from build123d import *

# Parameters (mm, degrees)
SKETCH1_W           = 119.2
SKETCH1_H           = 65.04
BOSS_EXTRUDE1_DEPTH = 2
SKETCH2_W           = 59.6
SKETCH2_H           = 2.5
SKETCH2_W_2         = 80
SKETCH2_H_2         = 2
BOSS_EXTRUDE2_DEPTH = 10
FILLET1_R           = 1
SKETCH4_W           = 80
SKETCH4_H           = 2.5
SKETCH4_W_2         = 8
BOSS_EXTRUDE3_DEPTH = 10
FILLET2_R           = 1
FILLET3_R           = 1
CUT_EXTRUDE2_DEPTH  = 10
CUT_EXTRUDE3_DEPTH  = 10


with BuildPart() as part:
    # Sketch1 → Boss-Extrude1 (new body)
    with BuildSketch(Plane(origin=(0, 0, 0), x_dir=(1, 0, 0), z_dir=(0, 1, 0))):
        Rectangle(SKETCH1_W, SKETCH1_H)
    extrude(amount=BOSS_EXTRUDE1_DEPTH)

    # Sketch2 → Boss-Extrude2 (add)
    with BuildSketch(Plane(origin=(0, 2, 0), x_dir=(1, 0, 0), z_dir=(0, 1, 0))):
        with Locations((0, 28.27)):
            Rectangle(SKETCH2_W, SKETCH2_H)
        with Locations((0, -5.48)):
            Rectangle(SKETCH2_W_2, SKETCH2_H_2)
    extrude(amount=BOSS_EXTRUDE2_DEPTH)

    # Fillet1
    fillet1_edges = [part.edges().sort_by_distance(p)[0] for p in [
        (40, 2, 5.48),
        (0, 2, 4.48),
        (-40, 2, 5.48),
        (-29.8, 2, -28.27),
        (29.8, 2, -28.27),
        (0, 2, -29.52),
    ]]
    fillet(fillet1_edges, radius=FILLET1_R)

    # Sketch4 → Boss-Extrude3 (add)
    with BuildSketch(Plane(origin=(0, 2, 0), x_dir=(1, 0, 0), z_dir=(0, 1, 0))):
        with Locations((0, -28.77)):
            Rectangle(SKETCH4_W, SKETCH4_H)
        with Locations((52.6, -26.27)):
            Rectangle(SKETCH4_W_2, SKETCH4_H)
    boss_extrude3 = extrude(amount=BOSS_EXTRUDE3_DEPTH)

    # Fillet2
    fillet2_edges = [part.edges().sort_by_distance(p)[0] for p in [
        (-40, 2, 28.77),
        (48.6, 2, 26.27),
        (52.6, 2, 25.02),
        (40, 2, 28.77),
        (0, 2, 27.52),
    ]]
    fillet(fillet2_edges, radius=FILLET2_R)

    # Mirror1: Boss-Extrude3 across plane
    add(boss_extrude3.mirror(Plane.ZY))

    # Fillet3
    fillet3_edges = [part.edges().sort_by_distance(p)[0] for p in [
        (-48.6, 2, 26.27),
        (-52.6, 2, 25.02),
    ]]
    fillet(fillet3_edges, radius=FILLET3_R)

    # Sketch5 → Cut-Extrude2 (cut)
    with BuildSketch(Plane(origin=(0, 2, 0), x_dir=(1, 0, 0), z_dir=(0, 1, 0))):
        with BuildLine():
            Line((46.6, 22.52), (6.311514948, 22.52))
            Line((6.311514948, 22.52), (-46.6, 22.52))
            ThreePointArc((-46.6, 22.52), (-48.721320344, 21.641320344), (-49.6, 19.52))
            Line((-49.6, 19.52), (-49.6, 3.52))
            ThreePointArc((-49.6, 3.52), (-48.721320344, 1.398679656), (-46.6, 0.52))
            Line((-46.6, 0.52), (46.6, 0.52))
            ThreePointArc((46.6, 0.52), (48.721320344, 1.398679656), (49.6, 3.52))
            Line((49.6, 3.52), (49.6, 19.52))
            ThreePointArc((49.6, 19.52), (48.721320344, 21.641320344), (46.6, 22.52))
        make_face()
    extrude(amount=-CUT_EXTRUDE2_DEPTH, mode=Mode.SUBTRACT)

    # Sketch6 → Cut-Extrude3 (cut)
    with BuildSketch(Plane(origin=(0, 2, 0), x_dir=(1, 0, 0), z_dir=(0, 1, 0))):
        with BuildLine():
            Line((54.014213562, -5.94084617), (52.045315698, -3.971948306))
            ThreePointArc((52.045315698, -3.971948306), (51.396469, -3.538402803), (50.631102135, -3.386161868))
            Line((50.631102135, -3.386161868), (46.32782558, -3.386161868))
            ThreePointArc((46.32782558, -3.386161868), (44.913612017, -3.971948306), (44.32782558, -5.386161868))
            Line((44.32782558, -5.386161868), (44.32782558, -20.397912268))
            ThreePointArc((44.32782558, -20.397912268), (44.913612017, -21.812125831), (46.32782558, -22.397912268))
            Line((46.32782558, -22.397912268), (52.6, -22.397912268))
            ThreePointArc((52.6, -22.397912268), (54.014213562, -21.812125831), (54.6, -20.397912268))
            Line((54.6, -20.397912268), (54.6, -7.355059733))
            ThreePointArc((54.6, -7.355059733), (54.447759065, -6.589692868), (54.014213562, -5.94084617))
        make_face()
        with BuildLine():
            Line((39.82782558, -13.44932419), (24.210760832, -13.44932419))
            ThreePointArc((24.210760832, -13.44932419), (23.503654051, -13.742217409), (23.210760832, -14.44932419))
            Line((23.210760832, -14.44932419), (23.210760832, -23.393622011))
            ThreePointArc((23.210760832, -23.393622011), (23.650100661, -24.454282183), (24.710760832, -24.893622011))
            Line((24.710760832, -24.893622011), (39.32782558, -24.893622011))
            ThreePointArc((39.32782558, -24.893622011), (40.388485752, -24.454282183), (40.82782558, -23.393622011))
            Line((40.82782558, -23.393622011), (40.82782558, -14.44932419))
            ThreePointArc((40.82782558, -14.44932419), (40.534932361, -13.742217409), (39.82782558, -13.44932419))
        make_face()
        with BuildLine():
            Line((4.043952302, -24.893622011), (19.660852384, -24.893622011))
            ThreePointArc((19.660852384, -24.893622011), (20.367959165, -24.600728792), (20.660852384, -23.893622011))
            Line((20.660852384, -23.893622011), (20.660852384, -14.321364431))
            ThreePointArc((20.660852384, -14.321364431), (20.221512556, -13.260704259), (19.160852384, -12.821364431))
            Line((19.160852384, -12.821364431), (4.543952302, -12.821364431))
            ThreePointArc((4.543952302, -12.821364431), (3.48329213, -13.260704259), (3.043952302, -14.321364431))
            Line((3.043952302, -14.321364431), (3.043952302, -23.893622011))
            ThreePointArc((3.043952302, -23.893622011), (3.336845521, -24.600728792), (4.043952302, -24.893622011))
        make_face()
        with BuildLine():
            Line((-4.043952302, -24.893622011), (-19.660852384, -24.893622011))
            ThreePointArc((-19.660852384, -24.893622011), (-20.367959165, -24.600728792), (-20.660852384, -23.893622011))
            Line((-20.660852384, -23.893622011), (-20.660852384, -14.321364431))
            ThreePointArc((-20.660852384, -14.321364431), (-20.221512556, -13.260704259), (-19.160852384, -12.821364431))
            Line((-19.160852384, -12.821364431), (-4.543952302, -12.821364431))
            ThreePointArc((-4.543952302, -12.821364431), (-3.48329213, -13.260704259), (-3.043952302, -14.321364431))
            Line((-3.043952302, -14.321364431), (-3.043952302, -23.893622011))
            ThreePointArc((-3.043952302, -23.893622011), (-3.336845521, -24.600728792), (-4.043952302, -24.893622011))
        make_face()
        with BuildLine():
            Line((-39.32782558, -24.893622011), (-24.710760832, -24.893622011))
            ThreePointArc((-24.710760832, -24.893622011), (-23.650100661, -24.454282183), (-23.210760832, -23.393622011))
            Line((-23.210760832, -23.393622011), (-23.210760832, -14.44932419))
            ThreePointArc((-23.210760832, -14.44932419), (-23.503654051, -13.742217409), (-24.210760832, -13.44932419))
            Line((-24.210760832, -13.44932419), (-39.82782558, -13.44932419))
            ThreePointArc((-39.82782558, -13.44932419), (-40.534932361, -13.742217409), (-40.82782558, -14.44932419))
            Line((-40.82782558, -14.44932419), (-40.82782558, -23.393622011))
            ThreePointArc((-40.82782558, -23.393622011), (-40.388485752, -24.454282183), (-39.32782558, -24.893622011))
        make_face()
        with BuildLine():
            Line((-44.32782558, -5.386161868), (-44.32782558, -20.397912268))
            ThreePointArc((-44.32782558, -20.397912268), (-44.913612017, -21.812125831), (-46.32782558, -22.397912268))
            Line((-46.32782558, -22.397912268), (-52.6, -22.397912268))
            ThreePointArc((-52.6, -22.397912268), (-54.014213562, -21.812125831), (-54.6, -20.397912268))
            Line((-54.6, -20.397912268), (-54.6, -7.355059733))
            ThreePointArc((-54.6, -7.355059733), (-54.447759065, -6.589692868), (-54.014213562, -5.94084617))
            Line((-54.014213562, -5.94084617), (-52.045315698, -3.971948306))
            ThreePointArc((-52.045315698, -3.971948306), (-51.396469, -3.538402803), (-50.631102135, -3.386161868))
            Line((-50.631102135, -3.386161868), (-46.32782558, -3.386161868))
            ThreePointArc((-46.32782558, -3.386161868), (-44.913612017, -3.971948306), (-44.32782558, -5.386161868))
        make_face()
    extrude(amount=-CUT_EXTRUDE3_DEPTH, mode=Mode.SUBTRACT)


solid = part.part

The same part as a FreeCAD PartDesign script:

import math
import FreeCAD as App
import Part
import Sketcher

V = App.Vector


def edges_at(feature, points):
    """Names of the edges that pass closest to the given points."""
    edges = feature.Shape.Edges
    near = lambda p: min(range(len(edges)), key=lambda i: edges[i].distToShape(Part.Vertex(*p))[0])
    return sorted({f"Edge{near(p) + 1}" for p in points})


def add_polygon(sketch, points):
    """Adds a closed chain of lines whose ends are joined by coincident constraints."""
    first, n = sketch.GeometryCount, len(points)
    for a, b in zip(points, points[1:] + points[:1]):
        sketch.addGeometry(Part.LineSegment(App.Vector(*a, 0), App.Vector(*b, 0)), False)
    for i in range(n):
        sketch.addConstraint(Sketcher.Constraint("Coincident", first + i, 2, first + (i + 1) % n, 1))

doc = App.newDocument("Part")
body = doc.addObject("PartDesign::Body", "Body")

# Sketch on XZ plane
sketch1 = doc.addObject("Sketcher::SketchObject", "Sketch")
body.addObject(sketch1)
sketch1.AttachmentSupport = (doc.XZ_Plane, [""])
sketch1.MapMode = "FlatFace"
add_polygon(sketch1, [(-60, -33), (-60, 33), (60, 33), (60, -33)])  # lines 0-3
sketch1.addConstraint([
    Sketcher.Constraint("Vertical", 0),
    Sketcher.Constraint("Horizontal", 1),
    Sketcher.Constraint("Vertical", 2),
    Sketcher.Constraint("Horizontal", 3),
    Sketcher.Constraint("Symmetric", 0, 2, 2, 2, -1, 1),
    Sketcher.Constraint("DistanceX", 1, 1, 1, 2, 119.2),
    Sketcher.Constraint("DistanceY", 0, 1, 0, 2, 65.04),
])
pad1 = doc.addObject("PartDesign::Pad", "Pad")
body.addObject(pad1)
pad1.Profile = sketch1
pad1.Length = 2
pad1.Reversed = True

# Sketch on XZ plane
sketch2 = doc.addObject("Sketcher::SketchObject", "Sketch001")
body.addObject(sketch2)
sketch2.AttachmentSupport = (doc.XZ_Plane, [""])
sketch2.MapMode = "FlatFace"
sketch2.AttachmentOffset = App.Placement(V(0, 0, -2), App.Rotation())
add_polygon(sketch2, [(-29.8, -29.5), (-29.8, -27), (29.8, -27), (29.8, -29.5)])  # lines 0-3
add_polygon(sketch2, [(-40, 4.5), (-40, 6.5), (40, 6.5), (40, 4.5)])  # lines 4-7
sketch2.addConstraint([
    Sketcher.Constraint("Vertical", 0),
    Sketcher.Constraint("Horizontal", 1),
    Sketcher.Constraint("Vertical", 2),
    Sketcher.Constraint("Horizontal", 3),
    Sketcher.Constraint("Vertical", 4),
    Sketcher.Constraint("Horizontal", 5),
    Sketcher.Constraint("Vertical", 6),
    Sketcher.Constraint("Horizontal", 7),
    Sketcher.Constraint("DistanceX", 5, 1, 5, 2, 80.0),
    Sketcher.Constraint("DistanceY", 4, 1, 4, 2, 2.0),
    Sketcher.Constraint("DistanceX", 1, 1, 1, 2, 59.6),
    Sketcher.Constraint("DistanceY", 0, 1, 0, 2, 2.5),
    Sketcher.Constraint("DistanceX", 4, 2, -1, 1, 40.0),
    Sketcher.Constraint("DistanceY", 3, 2, 4, 2, 36.0),
    Sketcher.Constraint("DistanceX", 0, 2, -1, 1, 29.8),
    Sketcher.Constraint("DistanceY", 0, 2, -1, 1, 27.02),
])
pad2 = doc.addObject("PartDesign::Pad", "Pad001")
body.addObject(pad2)
pad2.Profile = sketch2
pad2.Length = 10
pad2.Reversed = True
doc.recompute()

fillet = doc.addObject("PartDesign::Fillet", "Fillet")
body.addObject(fillet)
fillet.Base = (pad2, edges_at(pad2, [
    (40, 2, 5.48),
    (0, 2, 4.48),
    (-40, 2, 5.48),
    (-29.8, 2, -28.27),
    (29.8, 2, -28.27),
    (0, 2, -29.52),
]))
fillet.Radius = 1

# Sketch on XZ plane
sketch3 = doc.addObject("Sketcher::SketchObject", "Sketch002")
body.addObject(sketch3)
sketch3.AttachmentSupport = (doc.XZ_Plane, [""])
sketch3.MapMode = "FlatFace"
sketch3.AttachmentOffset = App.Placement(V(0, 0, -2), App.Rotation())
add_polygon(sketch3, [(-40, 27.5), (-40, 30), (40, 30), (40, 27.5)])  # lines 0-3
add_polygon(sketch3, [(48.6, 25), (48.6, 27.5), (56.6, 27.5), (56.6, 25)])  # lines 4-7
sketch3.addConstraint([
    Sketcher.Constraint("Vertical", 0),
    Sketcher.Constraint("Horizontal", 1),
    Sketcher.Constraint("Vertical", 2),
    Sketcher.Constraint("Horizontal", 3),
    Sketcher.Constraint("Vertical", 4),
    Sketcher.Constraint("Horizontal", 5),
    Sketcher.Constraint("Vertical", 6),
    Sketcher.Constraint("Horizontal", 7),
    Sketcher.Constraint("Horizontal", 3, 2, 4, 2),
    Sketcher.Constraint("Equal", 2, 4),
    Sketcher.Constraint("DistanceX", 1, 1, 1, 2, 80.0),
    Sketcher.Constraint("DistanceX", 5, 1, 5, 2, 8.0),
    Sketcher.Constraint("DistanceY", 0, 1, 0, 2, 2.5),
    Sketcher.Constraint("DistanceX", 0, 2, -1, 1, 40.0),
    Sketcher.Constraint("DistanceX", -1, 1, 4, 2, 48.6),
    Sketcher.Constraint("DistanceY", -1, 1, 0, 2, 30.02),
])
pad3 = doc.addObject("PartDesign::Pad", "Pad002")
body.addObject(pad3)
pad3.Profile = sketch3
pad3.Length = 10
pad3.Reversed = True
doc.recompute()

fillet2 = doc.addObject("PartDesign::Fillet", "Fillet001")
body.addObject(fillet2)
fillet2.Base = (pad3, edges_at(pad3, [
    (-40, 2, 28.77),
    (48.6, 2, 26.27),
    (52.6, 2, 25.02),
    (40, 2, 28.77),
    (0, 2, 27.52),
]))
fillet2.Radius = 1
doc.recompute()

mirrored = doc.addObject("PartDesign::Mirrored", "Mirrored")
body.addObject(mirrored)
mirrored.Originals = [pad3]
mirrored.MirrorPlane = (doc.YZ_Plane, [""])
body.Tip = mirrored
doc.recompute()

fillet3 = doc.addObject("PartDesign::Fillet", "Fillet002")
body.addObject(fillet3)
fillet3.Base = (mirrored, edges_at(mirrored, [(-48.6, 2, 26.27), (-52.6, 2, 25.02)]))
fillet3.Radius = 1

# Sketch on XZ plane
sketch4 = doc.addObject("Sketcher::SketchObject", "Sketch003")
body.addObject(sketch4)
sketch4.AttachmentSupport = (doc.XZ_Plane, [""])
sketch4.MapMode = "FlatFace"
sketch4.AttachmentOffset = App.Placement(V(0, 0, -2), App.Rotation())
sketch4.addGeometry([
    Part.LineSegment(V(46.6, -22.5, 0), V(-46.6, -22.5, 0)),  # 0
    Part.ArcOfCircle(Part.Circle(V(-46.6, -19.5, 0), V(0, 0, 1), 3), math.radians(180), math.radians(270)),  # 1
    Part.LineSegment(V(-49.6, -19.5, 0), V(-49.6, -3.5, 0)),  # 2
    Part.ArcOfCircle(Part.Circle(V(-46.6, -3.5, 0), V(0, 0, 1), 3), math.radians(90), math.radians(180)),  # 3
    Part.LineSegment(V(-46.6, -0.5, 0), V(46.6, -0.5, 0)),  # 4
    Part.ArcOfCircle(Part.Circle(V(46.6, -3.5, 0), V(0, 0, 1), 3), math.radians(0), math.radians(90)),  # 5
    Part.LineSegment(V(49.6, -3.5, 0), V(49.6, -19.5, 0)),  # 6
    Part.ArcOfCircle(Part.Circle(V(46.6, -19.5, 0), V(0, 0, 1), 3), math.radians(-90), math.radians(0)),  # 7
], False)
sketch4.addConstraint([
    Sketcher.Constraint("Tangent", 0, 2, 1, 2),
    Sketcher.Constraint("Tangent", 1, 1, 2, 1),
    Sketcher.Constraint("Tangent", 2, 2, 3, 2),
    Sketcher.Constraint("Tangent", 3, 1, 4, 1),
    Sketcher.Constraint("Tangent", 4, 2, 5, 2),
    Sketcher.Constraint("Tangent", 5, 1, 6, 1),
    Sketcher.Constraint("Tangent", 6, 2, 7, 2),
    Sketcher.Constraint("Tangent", 7, 1, 0, 1),
    Sketcher.Constraint("Horizontal", 0),
    Sketcher.Constraint("Vertical", 2),
    Sketcher.Constraint("Horizontal", 4),
    Sketcher.Constraint("Vertical", 6),
    Sketcher.Constraint("Equal", 1, 3),
    Sketcher.Constraint("Equal", 3, 5),
    Sketcher.Constraint("Equal", 5, 7),
    Sketcher.Constraint("Radius", 1, 3.0),
    Sketcher.Constraint("DistanceY", 2, 1, 2, 2, 16.0),
    Sketcher.Constraint("DistanceX", 0, 2, 0, 1, 93.2),
    Sketcher.Constraint("DistanceX", 1, 3, -1, 1, 46.6),
    Sketcher.Constraint("DistanceY", 1, 3, -1, 1, 19.52),
])
pocket1 = doc.addObject("PartDesign::Pocket", "Pocket")
body.addObject(pocket1)
pocket1.Profile = sketch4
pocket1.Length = 10
pocket1.Reversed = True

# Sketch on XZ plane
sketch5 = doc.addObject("Sketcher::SketchObject", "Sketch004")
body.addObject(sketch5)
sketch5.AttachmentSupport = (doc.XZ_Plane, [""])
sketch5.MapMode = "FlatFace"
sketch5.AttachmentOffset = App.Placement(V(0, 0, -2), App.Rotation())
sketch5.addGeometry([
    Part.LineSegment(V(54, 5.9, 0), V(52, 4, 0)),  # 0
    Part.ArcOfCircle(Part.Circle(V(50.6, 5.4, 0), V(0, 0, 1), 2), math.radians(-90), math.radians(-45)),  # 1
    Part.LineSegment(V(50.6, 3.4, 0), V(46.3, 3.4, 0)),  # 2
    Part.ArcOfCircle(Part.Circle(V(46.3, 5.4, 0), V(0, 0, 1), 2), math.radians(180), math.radians(270)),  # 3
    Part.LineSegment(V(44.3, 5.4, 0), V(44.3, 20.4, 0)),  # 4
    Part.ArcOfCircle(Part.Circle(V(46.3, 20.4, 0), V(0, 0, 1), 2), math.radians(90), math.radians(180)),  # 5
    Part.LineSegment(V(46.3, 22.4, 0), V(52.6, 22.4, 0)),  # 6
    Part.ArcOfCircle(Part.Circle(V(52.6, 20.4, 0), V(0, 0, 1), 2), math.radians(0), math.radians(90)),  # 7
    Part.LineSegment(V(54.6, 20.4, 0), V(54.6, 7.4, 0)),  # 8
    Part.ArcOfCircle(Part.Circle(V(52.6, 7.4, 0), V(0, 0, 1), 2), math.radians(-45), math.radians(0)),  # 9
    Part.LineSegment(V(39.8, 13.4, 0), V(24.2, 13.4, 0)),  # 10
    Part.ArcOfCircle(Part.Circle(V(24.2, 14.4, 0), V(0, 0, 1), 1), math.radians(-180), math.radians(-90)),  # 11
    Part.LineSegment(V(23.2, 14.4, 0), V(23.2, 23.4, 0)),  # 12
    Part.ArcOfCircle(Part.Circle(V(24.7, 23.4, 0), V(0, 0, 1), 1.5), math.radians(90), math.radians(180)),  # 13
    Part.LineSegment(V(24.7, 24.9, 0), V(39.3, 24.9, 0)),  # 14
    Part.ArcOfCircle(Part.Circle(V(39.3, 23.4, 0), V(0, 0, 1), 1.5), math.radians(0), math.radians(90)),  # 15
    Part.LineSegment(V(40.8, 23.4, 0), V(40.8, 14.4, 0)),  # 16
    Part.ArcOfCircle(Part.Circle(V(39.8, 14.4, 0), V(0, 0, 1), 1), math.radians(-90), math.radians(0)),  # 17
    Part.LineSegment(V(4, 24.9, 0), V(19.7, 24.9, 0)),  # 18
    Part.ArcOfCircle(Part.Circle(V(19.7, 23.9, 0), V(0, 0, 1), 1), math.radians(0), math.radians(90)),  # 19
    Part.LineSegment(V(20.7, 23.9, 0), V(20.7, 14.3, 0)),  # 20
    Part.ArcOfCircle(Part.Circle(V(19.2, 14.3, 0), V(0, 0, 1), 1.5), math.radians(-90), math.radians(0)),  # 21
    Part.LineSegment(V(19.2, 12.8, 0), V(4.5, 12.8, 0)),  # 22
    Part.ArcOfCircle(Part.Circle(V(4.5, 14.3, 0), V(0, 0, 1), 1.5), math.radians(180), math.radians(270)),  # 23
    Part.LineSegment(V(3, 14.3, 0), V(3, 23.9, 0)),  # 24
    Part.ArcOfCircle(Part.Circle(V(4, 23.9, 0), V(0, 0, 1), 1), math.radians(90), math.radians(180)),  # 25
    Part.LineSegment(V(-19.7, 24.9, 0), V(-4, 24.9, 0)),  # 26
    Part.ArcOfCircle(Part.Circle(V(-4, 23.9, 0), V(0, 0, 1), 1), math.radians(0), math.radians(90)),  # 27
    Part.LineSegment(V(-3, 23.9, 0), V(-3, 14.3, 0)),  # 28
    Part.ArcOfCircle(Part.Circle(V(-4.5, 14.3, 0), V(0, 0, 1), 1.5), math.radians(-90), math.radians(0)),  # 29
    Part.LineSegment(V(-4.5, 12.8, 0), V(-19.2, 12.8, 0)),  # 30
    Part.ArcOfCircle(Part.Circle(V(-19.2, 14.3, 0), V(0, 0, 1), 1.5), math.radians(180), math.radians(270)),  # 31
    Part.LineSegment(V(-20.7, 14.3, 0), V(-20.7, 23.9, 0)),  # 32
    Part.ArcOfCircle(Part.Circle(V(-19.7, 23.9, 0), V(0, 0, 1), 1), math.radians(90), math.radians(180)),  # 33
    Part.LineSegment(V(-39.3, 24.9, 0), V(-24.7, 24.9, 0)),  # 34
    Part.ArcOfCircle(Part.Circle(V(-24.7, 23.4, 0), V(0, 0, 1), 1.5), math.radians(0), math.radians(90)),  # 35
    Part.LineSegment(V(-23.2, 23.4, 0), V(-23.2, 14.4, 0)),  # 36
    Part.ArcOfCircle(Part.Circle(V(-24.2, 14.4, 0), V(0, 0, 1), 1), math.radians(-90), math.radians(0)),  # 37
    Part.LineSegment(V(-24.2, 13.4, 0), V(-39.8, 13.4, 0)),  # 38
    Part.ArcOfCircle(Part.Circle(V(-39.8, 14.4, 0), V(0, 0, 1), 1), math.radians(-180), math.radians(-90)),  # 39
    Part.LineSegment(V(-40.8, 14.4, 0), V(-40.8, 23.4, 0)),  # 40
    Part.ArcOfCircle(Part.Circle(V(-39.3, 23.4, 0), V(0, 0, 1), 1.5), math.radians(90), math.radians(180)),  # 41
    Part.LineSegment(V(-44.3, 20.4, 0), V(-44.3, 5.4, 0)),  # 42
    Part.ArcOfCircle(Part.Circle(V(-46.3, 5.4, 0), V(0, 0, 1), 2), math.radians(-90), math.radians(0)),  # 43
    Part.LineSegment(V(-46.3, 3.4, 0), V(-50.6, 3.4, 0)),  # 44
    Part.ArcOfCircle(Part.Circle(V(-50.6, 5.4, 0), V(0, 0, 1), 2), math.radians(-135), math.radians(-90)),  # 45
    Part.LineSegment(V(-52, 4, 0), V(-54, 5.9, 0)),  # 46
    Part.ArcOfCircle(Part.Circle(V(-52.6, 7.4, 0), V(0, 0, 1), 2), math.radians(180), math.radians(225)),  # 47
    Part.LineSegment(V(-54.6, 7.4, 0), V(-54.6, 20.4, 0)),  # 48
    Part.ArcOfCircle(Part.Circle(V(-52.6, 20.4, 0), V(0, 0, 1), 2), math.radians(90), math.radians(180)),  # 49
    Part.LineSegment(V(-52.6, 22.4, 0), V(-46.3, 22.4, 0)),  # 50
    Part.ArcOfCircle(Part.Circle(V(-46.3, 20.4, 0), V(0, 0, 1), 2), math.radians(0), math.radians(90)),  # 51
], False)
sketch5.addConstraint([
    Sketcher.Constraint("Tangent", 0, 2, 1, 2),
    Sketcher.Constraint("Tangent", 1, 1, 2, 1),
    Sketcher.Constraint("Tangent", 2, 2, 3, 2),
    Sketcher.Constraint("Tangent", 3, 1, 4, 1),
    Sketcher.Constraint("Tangent", 4, 2, 5, 2),
    Sketcher.Constraint("Tangent", 5, 1, 6, 1),
    Sketcher.Constraint("Tangent", 6, 2, 7, 2),
    Sketcher.Constraint("Tangent", 7, 1, 8, 1),
    Sketcher.Constraint("Tangent", 8, 2, 9, 2),
    Sketcher.Constraint("Tangent", 9, 1, 0, 1),
    Sketcher.Constraint("Tangent", 10, 2, 11, 2),
    Sketcher.Constraint("Tangent", 11, 1, 12, 1),
    Sketcher.Constraint("Tangent", 12, 2, 13, 2),
    Sketcher.Constraint("Tangent", 13, 1, 14, 1),
    Sketcher.Constraint("Tangent", 14, 2, 15, 2),
    Sketcher.Constraint("Tangent", 15, 1, 16, 1),
    Sketcher.Constraint("Tangent", 16, 2, 17, 2),
    Sketcher.Constraint("Tangent", 17, 1, 10, 1),
    Sketcher.Constraint("Tangent", 18, 2, 19, 2),
    Sketcher.Constraint("Tangent", 19, 1, 20, 1),
    Sketcher.Constraint("Tangent", 20, 2, 21, 2),
    Sketcher.Constraint("Tangent", 21, 1, 22, 1),
    Sketcher.Constraint("Tangent", 22, 2, 23, 2),
    Sketcher.Constraint("Tangent", 23, 1, 24, 1),
    Sketcher.Constraint("Tangent", 24, 2, 25, 2),
    Sketcher.Constraint("Tangent", 25, 1, 18, 1),
    Sketcher.Constraint("Tangent", 26, 2, 27, 2),
    Sketcher.Constraint("Tangent", 27, 1, 28, 1),
    Sketcher.Constraint("Tangent", 28, 2, 29, 2),
    Sketcher.Constraint("Tangent", 29, 1, 30, 1),
    Sketcher.Constraint("Tangent", 30, 2, 31, 2),
    Sketcher.Constraint("Tangent", 31, 1, 32, 1),
    Sketcher.Constraint("Tangent", 32, 2, 33, 2),
    Sketcher.Constraint("Tangent", 33, 1, 26, 1),
    Sketcher.Constraint("Tangent", 34, 2, 35, 2),
    Sketcher.Constraint("Tangent", 35, 1, 36, 1),
    Sketcher.Constraint("Tangent", 36, 2, 37, 2),
    Sketcher.Constraint("Tangent", 37, 1, 38, 1),
    Sketcher.Constraint("Tangent", 38, 2, 39, 2),
    Sketcher.Constraint("Tangent", 39, 1, 40, 1),
    Sketcher.Constraint("Tangent", 40, 2, 41, 2),
    Sketcher.Constraint("Tangent", 41, 1, 34, 1),
    Sketcher.Constraint("Tangent", 42, 2, 43, 2),
    Sketcher.Constraint("Tangent", 43, 1, 44, 1),
    Sketcher.Constraint("Tangent", 44, 2, 45, 2),
    Sketcher.Constraint("Tangent", 45, 1, 46, 1),
    Sketcher.Constraint("Tangent", 46, 2, 47, 2),
    Sketcher.Constraint("Tangent", 47, 1, 48, 1),
    Sketcher.Constraint("Tangent", 48, 2, 49, 2),
    Sketcher.Constraint("Tangent", 49, 1, 50, 1),
    Sketcher.Constraint("Tangent", 50, 2, 51, 2),
    Sketcher.Constraint("Tangent", 51, 1, 42, 1),
    Sketcher.Constraint("Horizontal", 2),
    Sketcher.Constraint("Vertical", 4),
    Sketcher.Constraint("Horizontal", 6),
    Sketcher.Constraint("Vertical", 8),
    Sketcher.Constraint("Horizontal", 10),
    Sketcher.Constraint("Vertical", 12),
    Sketcher.Constraint("Horizontal", 14),
    Sketcher.Constraint("Vertical", 16),
    Sketcher.Constraint("Horizontal", 18),
    Sketcher.Constraint("Vertical", 20),
    Sketcher.Constraint("Horizontal", 22),
    Sketcher.Constraint("Vertical", 24),
    Sketcher.Constraint("Horizontal", 26),
    Sketcher.Constraint("Vertical", 28),
    Sketcher.Constraint("Horizontal", 30),
    Sketcher.Constraint("Vertical", 32),
    Sketcher.Constraint("Horizontal", 34),
    Sketcher.Constraint("Vertical", 36),
    Sketcher.Constraint("Horizontal", 38),
    Sketcher.Constraint("Vertical", 40),
    Sketcher.Constraint("Vertical", 42),
    Sketcher.Constraint("Horizontal", 44),
    Sketcher.Constraint("Vertical", 48),
    Sketcher.Constraint("Horizontal", 50),
    Sketcher.Constraint("Equal", 1, 3),
    Sketcher.Constraint("Equal", 3, 5),
    Sketcher.Constraint("Equal", 5, 7),
    Sketcher.Constraint("Equal", 7, 9),
    Sketcher.Constraint("Equal", 13, 15),
    Sketcher.Constraint("Equal", 11, 17),
    Sketcher.Constraint("Equal", 17, 19),
    Sketcher.Constraint("Equal", 15, 21),
    Sketcher.Constraint("Equal", 21, 23),
    Sketcher.Constraint("Equal", 19, 25),
    Sketcher.Constraint("Equal", 25, 27),
    Sketcher.Constraint("Equal", 23, 29),
    Sketcher.Constraint("Equal", 29, 31),
    Sketcher.Constraint("Equal", 27, 33),
    Sketcher.Constraint("Equal", 31, 35),
    Sketcher.Constraint("Equal", 33, 37),
    Sketcher.Constraint("Equal", 37, 39),
    Sketcher.Constraint("Equal", 35, 41),
    Sketcher.Constraint("Equal", 9, 43),
    Sketcher.Constraint("Equal", 43, 45),
    Sketcher.Constraint("Equal", 45, 47),
    Sketcher.Constraint("Equal", 47, 49),
    Sketcher.Constraint("Equal", 49, 51),
    Sketcher.Constraint("Symmetric", 25, 3, 27, 3, -2),
    Sketcher.Constraint("Symmetric", 21, 3, 31, 3, -2),
    Sketcher.Constraint("Symmetric", 13, 3, 35, 3, -2),
    Sketcher.Constraint("Symmetric", 17, 3, 39, 3, -2),
    Sketcher.Constraint("Symmetric", 3, 3, 43, 3, -2),
    Sketcher.Constraint("Symmetric", 9, 3, 47, 3, -2),
    Sketcher.Constraint("Perpendicular", 0, 46),
    Sketcher.Constraint("Horizontal", 7, 3, 49, 3),
    Sketcher.Constraint("Horizontal", 14, 2, 18, 2),
    Sketcher.Constraint("Horizontal", 0, 2, 45, 1),
    Sketcher.Constraint("Radius", 1, 2.0),
    Sketcher.Constraint("Radius", 11, 1.0),
    Sketcher.Constraint("Radius", 13, 1.5),
    Sketcher.Constraint("DistanceX", -1, 1, 7, 3, 52.6),
    Sketcher.Constraint("DistanceX", 18, 1, 18, 2, 15.6169),
    Sketcher.Constraint("DistanceY", 4, 1, 4, 2, 15.01175),
    Sketcher.Constraint("DistanceX", 2, 2, 2, 1, 4.303277),
    Sketcher.Constraint("DistanceX", 6, 1, 6, 2, 6.272174),
    Sketcher.Constraint("DistanceX", 10, 2, 10, 1, 15.617065),
    Sketcher.Constraint("DistanceY", 12, 1, 12, 2, 8.944298),
    Sketcher.Constraint("DistanceY", 20, 2, 20, 1, 9.572258),
    Sketcher.Constraint("DistanceY", -1, 1, 1, 3, 5.386162),
    Sketcher.Constraint("DistanceX", -1, 1, 11, 3, 24.210761),
    Sketcher.Constraint("DistanceY", -1, 1, 11, 3, 14.449324),
    Sketcher.Constraint("DistanceX", -1, 1, 19, 3, 19.660852),
])
pocket2 = doc.addObject("PartDesign::Pocket", "Pocket001")
body.addObject(pocket2)
pocket2.Profile = sketch5
pocket2.Length = 10
pocket2.Reversed = True

doc.recompute()
